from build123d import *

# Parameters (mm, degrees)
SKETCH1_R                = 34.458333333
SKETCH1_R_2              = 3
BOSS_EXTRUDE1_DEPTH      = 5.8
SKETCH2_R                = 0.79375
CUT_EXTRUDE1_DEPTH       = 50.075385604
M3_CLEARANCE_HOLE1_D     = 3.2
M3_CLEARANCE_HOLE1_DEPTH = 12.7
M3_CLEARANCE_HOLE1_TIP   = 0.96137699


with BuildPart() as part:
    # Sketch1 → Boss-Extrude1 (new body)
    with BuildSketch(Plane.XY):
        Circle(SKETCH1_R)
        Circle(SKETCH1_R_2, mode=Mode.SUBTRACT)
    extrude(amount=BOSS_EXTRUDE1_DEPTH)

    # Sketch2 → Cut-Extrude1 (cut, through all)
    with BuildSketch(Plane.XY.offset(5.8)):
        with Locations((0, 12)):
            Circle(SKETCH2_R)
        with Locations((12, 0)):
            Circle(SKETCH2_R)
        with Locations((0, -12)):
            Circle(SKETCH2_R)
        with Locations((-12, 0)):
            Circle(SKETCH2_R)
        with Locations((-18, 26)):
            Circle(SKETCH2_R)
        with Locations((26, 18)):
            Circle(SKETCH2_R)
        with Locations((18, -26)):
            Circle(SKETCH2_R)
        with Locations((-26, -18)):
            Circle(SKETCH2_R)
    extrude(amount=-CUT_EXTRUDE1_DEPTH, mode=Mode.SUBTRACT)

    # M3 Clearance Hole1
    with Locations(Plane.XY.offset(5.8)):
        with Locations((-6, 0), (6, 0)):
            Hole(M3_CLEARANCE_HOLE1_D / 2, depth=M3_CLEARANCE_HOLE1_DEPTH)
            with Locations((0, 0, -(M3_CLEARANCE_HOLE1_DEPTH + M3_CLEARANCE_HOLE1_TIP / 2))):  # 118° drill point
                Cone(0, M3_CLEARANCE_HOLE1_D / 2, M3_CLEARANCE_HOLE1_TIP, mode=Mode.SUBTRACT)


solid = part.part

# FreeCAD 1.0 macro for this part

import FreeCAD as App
import Part
import Sketcher
from FreeCAD import Vector
Q = App.Units.Quantity

doc = App.newDocument("Part")
params = doc.addObject("Spreadsheet::Sheet", "Params")
for row, (alias, value) in enumerate([
    ("sketch1_diameter", "6 mm"),
    ("pad1_length", "5.8 mm"),
    ("sketch3_diameter", "3.2 mm"),
    ("hole_diameter", "3.2 mm"),
    ("hole_depth", "12.7 mm"),
], start=1):
    params.set(f"A{row}", alias)
    params.set(f"B{row}", "=" + value)
    params.setAlias(f"B{row}", alias)

body = doc.addObject("PartDesign::Body", "Body")

# Sketch on XY plane
sketch1 = doc.addObject("Sketcher::SketchObject", "Sketch")
body.addObject(sketch1)
sketch1.AttachmentSupport = (doc.XY_Plane, [""])
sketch1.MapMode = "FlatFace"
sketch1.addGeometry([
    Part.Circle(Vector(0, 0, 0), Vector(0, 0, 1), 34.5),
    Part.Circle(Vector(0, 0, 0), Vector(0, 0, 1), 3),
], False)
sketch1.addConstraint([
    Sketcher.Constraint("Coincident", 0, 3, -1, 1),
    Sketcher.Constraint("Coincident", 1, 3, -1, 1),
    Sketcher.Constraint("Diameter", 1, Q("6 mm")),
    Sketcher.Constraint("Diameter", 0, Q("68.916667 mm")),
])
sketch1.setExpression("Constraints[2]", "Params.sketch1_diameter")
pad1 = doc.addObject("PartDesign::Pad", "Pad")
body.addObject(pad1)
pad1.Profile = sketch1
pad1.setExpression("Length", "Params.pad1_length")

# Sketch on XY plane
sketch2 = doc.addObject("Sketcher::SketchObject", "Sketch001")
body.addObject(sketch2)
sketch2.AttachmentSupport = (doc.XY_Plane, [""])
sketch2.MapMode = "FlatFace"
sketch2.AttachmentOffset = App.Placement(Vector(0, 0, 5.8), App.Rotation())
sketch2.addGeometry([
    Part.Circle(Vector(0, 12, 0), Vector(0, 0, 1), 0.8),  # 0
    Part.Circle(Vector(12, 0, 0), Vector(0, 0, 1), 0.8),  # 1
    Part.Circle(Vector(0, -12, 0), Vector(0, 0, 1), 0.8),  # 2
    Part.Circle(Vector(-12, 0, 0), Vector(0, 0, 1), 0.8),  # 3
    Part.Circle(Vector(-18, 26, 0), Vector(0, 0, 1), 0.8),  # 4
    Part.Circle(Vector(26, 18, 0), Vector(0, 0, 1), 0.8),  # 5
    Part.Circle(Vector(18, -26, 0), Vector(0, 0, 1), 0.8),  # 6
    Part.Circle(Vector(-26, -18, 0), Vector(0, 0, 1), 0.8),  # 7
], False)
sketch2.addConstraint([
    Sketcher.Constraint("Equal", 0, 1),
    Sketcher.Constraint("Equal", 1, 2),
    Sketcher.Constraint("Equal", 2, 3),
    Sketcher.Constraint("Equal", 3, 4),
    Sketcher.Constraint("Equal", 4, 5),
    Sketcher.Constraint("Equal", 5, 6),
    Sketcher.Constraint("Equal", 6, 7),
    Sketcher.Constraint("Symmetric", 0, 3, 2, 3, -1, 1),
    Sketcher.Constraint("Symmetric", 1, 3, 3, 3, -1, 1),
    Sketcher.Constraint("Symmetric", 4, 3, 6, 3, -1, 1),
    Sketcher.Constraint("Symmetric", 5, 3, 7, 3, -1, 1),
    Sketcher.Constraint("PointOnObject", 0, 3, -2),
    Sketcher.Constraint("PointOnObject", 1, 3, -1),
    Sketcher.Constraint("DistanceY", -1, 1, 0, 3, Q("12 mm")),
    Sketcher.Constraint("DistanceX", -1, 1, 1, 3, Q("12 mm")),
    Sketcher.Constraint("DistanceX", 4, 3, -1, 1, Q("18 mm")),
    Sketcher.Constraint("DistanceY", -1, 1, 4, 3, Q("26 mm")),
    Sketcher.Constraint("DistanceX", -1, 1, 5, 3, Q("26 mm")),
    Sketcher.Constraint("DistanceY", -1, 1, 5, 3, Q("18 mm")),
    Sketcher.Constraint("Diameter", 0, Q("1.5875 mm")),
])
pocket1 = doc.addObject("PartDesign::Pocket", "Pocket")
body.addObject(pocket1)
pocket1.Profile = sketch2
pocket1.Type = "ThroughAll"

# Sketch on XY plane
sketch3 = doc.addObject("Sketcher::SketchObject", "Sketch002")
body.addObject(sketch3)
sketch3.AttachmentSupport = (doc.XY_Plane, [""])
sketch3.MapMode = "FlatFace"
sketch3.AttachmentOffset = App.Placement(Vector(0, 0, 5.8), App.Rotation())
sketch3.addGeometry([
    Part.Circle(Vector(-6, 0, 0), Vector(0, 0, 1), 1.6),
    Part.Circle(Vector(6, 0, 0), Vector(0, 0, 1), 1.6),
], False)
sketch3.addConstraint([
    Sketcher.Constraint("Equal", 0, 1),
    Sketcher.Constraint("Symmetric", 0, 3, 1, 3, -1, 1),
    Sketcher.Constraint("PointOnObject", 0, 3, -1),
    Sketcher.Constraint("Diameter", 0, Q("3.2 mm")),
    Sketcher.Constraint("DistanceX", 0, 3, -1, 1, Q("6 mm")),
])
sketch3.setExpression("Constraints[3]", "Params.sketch3_diameter")
doc.recompute()
hole = doc.addObject("PartDesign::Hole", "Hole")
body.addObject(hole)
hole.Profile = sketch3
hole.ThreadType = "None"
hole.setExpression("Diameter", "Params.hole_diameter")
hole.DepthType = "Dimension"
hole.setExpression("Depth", "Params.hole_depth")
hole.DrillPoint = "Angled"
hole.DrillPointAngle = 118

doc.recompute()
